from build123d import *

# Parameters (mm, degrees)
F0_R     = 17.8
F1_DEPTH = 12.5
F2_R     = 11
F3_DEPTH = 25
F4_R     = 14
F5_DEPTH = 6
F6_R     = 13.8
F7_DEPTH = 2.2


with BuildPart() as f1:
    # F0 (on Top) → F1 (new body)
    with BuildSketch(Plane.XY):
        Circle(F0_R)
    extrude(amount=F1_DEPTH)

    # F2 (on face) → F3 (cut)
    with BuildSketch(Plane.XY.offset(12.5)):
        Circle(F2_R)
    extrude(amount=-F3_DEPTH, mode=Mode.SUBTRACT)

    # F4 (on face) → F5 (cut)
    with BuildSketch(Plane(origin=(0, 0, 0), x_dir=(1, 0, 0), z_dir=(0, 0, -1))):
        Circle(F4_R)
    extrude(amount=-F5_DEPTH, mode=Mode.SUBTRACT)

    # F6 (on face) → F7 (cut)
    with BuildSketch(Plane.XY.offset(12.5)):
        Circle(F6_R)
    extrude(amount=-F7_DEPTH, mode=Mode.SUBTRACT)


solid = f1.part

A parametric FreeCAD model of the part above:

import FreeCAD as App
import Part
import Sketcher
Q = App.Units.Quantity

doc = App.newDocument("Part")
params = doc.addObject("Spreadsheet::Sheet", "Params")
for row, (alias, value) in enumerate([
    ("sketch1_diameter", "35.6 mm"),
    ("pad1_length", "12.5 mm"),
    ("sketch2_diameter", "22 mm"),
    ("pocket1_length", "25 mm"),
    ("sketch3_diameter", "28 mm"),
    ("pocket2_length", "6 mm"),
    ("sketch4_diameter", "27.6 mm"),
    ("pocket3_length", "2.2 mm"),
], start=1):
    params.set(f"A{row}", alias)
    params.set(f"B{row}", "=" + value)
    params.setAlias(f"B{row}", alias)

body = doc.addObject("PartDesign::Body", "Body")

sketch1 = body.newObject("Sketcher::SketchObject", "Sketch")
sketch1.AttachmentSupport = (doc.getObject("XY_Plane"), [""])
sketch1.MapMode = "FlatFace"
sketch1.addGeometry(Part.Circle(App.Vector(0, 0, 0), App.Vector(0, 0, 1), 18), False)
sketch1.addConstraint([
    Sketcher.Constraint("Coincident", 0, 3, -1, 1),
    Sketcher.Constraint("Diameter", 0, Q("35.6 mm")),
])
sketch1.setExpression("Constraints[1]", "Params.sketch1_diameter")
pad1 = body.newObject("PartDesign::Pad", "Pad")
pad1.Profile = sketch1
pad1.setExpression("Length", "Params.pad1_length")

sketch2 = body.newObject("Sketcher::SketchObject", "Sketch001")
sketch2.AttachmentSupport = (doc.getObject("XY_Plane"), [""])
sketch2.MapMode = "FlatFace"
sketch2.AttachmentOffset = App.Placement(App.Vector(0, 0, 12.5), App.Rotation())
sketch2.addGeometry(Part.Circle(App.Vector(0, 0, 0), App.Vector(0, 0, 1), 11), False)
sketch2.addConstraint([
    Sketcher.Constraint("Coincident", 0, 3, -1, 1),
    Sketcher.Constraint("Diameter", 0, Q("22 mm")),
])
sketch2.setExpression("Constraints[1]", "Params.sketch2_diameter")
pocket1 = body.newObject("PartDesign::Pocket", "Pocket")
pocket1.Profile = sketch2
pocket1.setExpression("Length", "Params.pocket1_length")

sketch3 = body.newObject("Sketcher::SketchObject", "Sketch002")
sketch3.AttachmentSupport = (doc.getObject("XY_Plane"), [""])
sketch3.MapMode = "FlatFace"
sketch3.addGeometry(Part.Circle(App.Vector(0, 0, 0), App.Vector(0, 0, 1), 14), False)
sketch3.addConstraint([
    Sketcher.Constraint("Coincident", 0, 3, -1, 1),
    Sketcher.Constraint("Diameter", 0, Q("28 mm")),
])
sketch3.setExpression("Constraints[1]", "Params.sketch3_diameter")
pocket2 = body.newObject("PartDesign::Pocket", "Pocket001")
pocket2.Profile = sketch3
pocket2.setExpression("Length", "Params.pocket2_length")
pocket2.Reversed = True

sketch4 = body.newObject("Sketcher::SketchObject", "Sketch003")
sketch4.AttachmentSupport = (doc.getObject("XY_Plane"), [""])
sketch4.MapMode = "FlatFace"
sketch4.AttachmentOffset = App.Placement(App.Vector(0, 0, 12.5), App.Rotation())
sketch4.addGeometry(Part.Circle(App.Vector(0, 0, 0), App.Vector(0, 0, 1), 14), False)
sketch4.addConstraint([
    Sketcher.Constraint("Coincident", 0, 3, -1, 1),
    Sketcher.Constraint("Diameter", 0, Q("27.6 mm")),
])
sketch4.setExpression("Constraints[1]", "Params.sketch4_diameter")
pocket3 = body.newObject("PartDesign::Pocket", "Pocket002")
pocket3.Profile = sketch4
pocket3.setExpression("Length", "Params.pocket3_length")

doc.recompute()
